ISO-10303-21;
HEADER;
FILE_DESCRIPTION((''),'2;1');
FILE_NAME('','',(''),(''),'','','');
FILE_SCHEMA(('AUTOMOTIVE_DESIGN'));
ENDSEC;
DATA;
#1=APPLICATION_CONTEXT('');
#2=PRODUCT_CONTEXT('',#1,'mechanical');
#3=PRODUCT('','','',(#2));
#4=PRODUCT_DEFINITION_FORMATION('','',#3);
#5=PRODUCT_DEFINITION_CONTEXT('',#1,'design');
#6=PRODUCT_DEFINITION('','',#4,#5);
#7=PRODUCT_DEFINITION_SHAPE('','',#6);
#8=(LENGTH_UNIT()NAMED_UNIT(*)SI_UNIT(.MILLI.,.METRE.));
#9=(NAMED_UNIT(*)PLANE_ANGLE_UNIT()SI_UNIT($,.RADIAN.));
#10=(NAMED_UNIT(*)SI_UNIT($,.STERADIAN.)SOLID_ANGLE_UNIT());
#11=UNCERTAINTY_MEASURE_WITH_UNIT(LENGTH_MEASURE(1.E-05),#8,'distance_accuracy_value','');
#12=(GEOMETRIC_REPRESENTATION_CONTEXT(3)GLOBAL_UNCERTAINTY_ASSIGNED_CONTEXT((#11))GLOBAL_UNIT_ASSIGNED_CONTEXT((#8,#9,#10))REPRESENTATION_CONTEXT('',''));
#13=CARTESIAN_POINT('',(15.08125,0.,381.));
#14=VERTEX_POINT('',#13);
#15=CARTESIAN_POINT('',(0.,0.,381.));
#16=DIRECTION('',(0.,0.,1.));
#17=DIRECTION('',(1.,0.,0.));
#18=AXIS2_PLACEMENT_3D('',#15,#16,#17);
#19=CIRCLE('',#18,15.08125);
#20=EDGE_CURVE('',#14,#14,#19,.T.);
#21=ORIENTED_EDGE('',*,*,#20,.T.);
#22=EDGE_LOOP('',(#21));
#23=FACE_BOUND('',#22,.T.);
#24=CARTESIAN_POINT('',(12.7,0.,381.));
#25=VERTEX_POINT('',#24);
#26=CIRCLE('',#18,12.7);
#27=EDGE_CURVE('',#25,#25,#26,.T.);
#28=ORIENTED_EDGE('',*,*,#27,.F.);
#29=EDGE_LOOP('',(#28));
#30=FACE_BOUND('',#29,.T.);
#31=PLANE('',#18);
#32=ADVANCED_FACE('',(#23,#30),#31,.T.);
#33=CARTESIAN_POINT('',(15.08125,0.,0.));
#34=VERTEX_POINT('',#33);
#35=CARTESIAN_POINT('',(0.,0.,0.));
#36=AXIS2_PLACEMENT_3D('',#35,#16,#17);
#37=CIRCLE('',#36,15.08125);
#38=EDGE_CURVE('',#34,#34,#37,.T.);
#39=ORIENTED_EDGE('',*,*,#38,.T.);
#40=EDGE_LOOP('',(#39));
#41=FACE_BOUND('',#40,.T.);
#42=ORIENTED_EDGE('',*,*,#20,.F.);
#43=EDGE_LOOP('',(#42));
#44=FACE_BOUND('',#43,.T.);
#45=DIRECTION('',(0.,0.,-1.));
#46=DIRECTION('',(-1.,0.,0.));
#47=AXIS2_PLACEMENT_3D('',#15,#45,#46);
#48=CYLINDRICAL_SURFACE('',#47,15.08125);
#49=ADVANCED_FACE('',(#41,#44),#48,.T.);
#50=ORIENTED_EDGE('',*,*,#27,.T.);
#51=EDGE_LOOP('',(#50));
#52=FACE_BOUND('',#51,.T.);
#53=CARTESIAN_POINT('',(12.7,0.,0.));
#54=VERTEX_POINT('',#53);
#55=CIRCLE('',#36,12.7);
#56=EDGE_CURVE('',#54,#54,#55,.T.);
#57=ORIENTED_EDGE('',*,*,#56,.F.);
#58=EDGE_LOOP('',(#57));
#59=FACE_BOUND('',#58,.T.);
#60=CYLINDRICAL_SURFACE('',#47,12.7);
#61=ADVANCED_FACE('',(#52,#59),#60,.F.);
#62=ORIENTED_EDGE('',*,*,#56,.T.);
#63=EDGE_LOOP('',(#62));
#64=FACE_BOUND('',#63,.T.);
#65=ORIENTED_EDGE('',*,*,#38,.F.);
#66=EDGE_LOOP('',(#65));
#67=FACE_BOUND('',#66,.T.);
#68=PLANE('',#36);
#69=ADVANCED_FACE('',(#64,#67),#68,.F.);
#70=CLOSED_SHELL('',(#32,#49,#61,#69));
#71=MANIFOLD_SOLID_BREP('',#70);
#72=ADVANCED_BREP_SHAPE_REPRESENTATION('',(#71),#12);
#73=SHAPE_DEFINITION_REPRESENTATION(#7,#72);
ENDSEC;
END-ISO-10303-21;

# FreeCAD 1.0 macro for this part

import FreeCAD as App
import Part
import Sketcher
Q = App.Units.Quantity

doc = App.newDocument("Part")
body = doc.addObject("PartDesign::Body", "Body")

# Sketch on XY plane
sketch1 = body.newObject("Sketcher::SketchObject", "Sketch")
sketch1.AttachmentSupport = (doc.getObject("XY_Plane"), [""])
sketch1.MapMode = "FlatFace"
sketch1.addGeometry(Part.Circle(App.Vector(0, 0, 0), App.Vector(0, 0, 1), 15.08125), False)
sketch1.addGeometry(Part.Circle(App.Vector(0, 0, 0), App.Vector(0, 0, 1), 12.7), False)
sketch1.addConstraint(Sketcher.Constraint("Coincident", 0, 3, -1, 1))
sketch1.addConstraint(Sketcher.Constraint("Coincident", 1, 3, -1, 1))
sketch1.addConstraint(Sketcher.Constraint("Diameter", 1, Q("1 in")))
sketch1.addConstraint(Sketcher.Constraint("Diameter", 0, Q("1.1875 in")))
pad1 = body.newObject("PartDesign::Pad", "Pad")
pad1.Profile = sketch1
pad1.Length = Q("15 in")

doc.recompute()
